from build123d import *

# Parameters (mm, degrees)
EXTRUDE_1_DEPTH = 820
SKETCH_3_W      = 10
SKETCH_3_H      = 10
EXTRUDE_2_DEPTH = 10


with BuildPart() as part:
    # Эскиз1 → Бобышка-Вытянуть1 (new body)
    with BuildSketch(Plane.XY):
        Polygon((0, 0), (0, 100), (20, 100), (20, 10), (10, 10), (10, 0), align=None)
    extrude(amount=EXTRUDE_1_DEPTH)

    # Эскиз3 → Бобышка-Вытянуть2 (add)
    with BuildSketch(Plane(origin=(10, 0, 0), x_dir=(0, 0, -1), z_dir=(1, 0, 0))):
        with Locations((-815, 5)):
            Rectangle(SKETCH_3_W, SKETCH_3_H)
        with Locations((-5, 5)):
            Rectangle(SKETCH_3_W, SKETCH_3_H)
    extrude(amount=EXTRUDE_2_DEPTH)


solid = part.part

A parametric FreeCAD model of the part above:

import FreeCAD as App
import Part
import Sketcher
Q = App.Units.Quantity

doc = App.newDocument("Part")
params = doc.addObject("Spreadsheet::Sheet", "Params")
for row, (alias, value) in enumerate([
    ("sketch1_width", "10 mm"),
    ("sketch1_height", "100 mm"),
    ("pad1_length", "820 mm"),
    ("sketch2_width", "10 mm"),
    ("pad2_length", "10 mm"),
], start=1):
    params.set(f"A{row}", alias)
    params.set(f"B{row}", "=" + value)
    params.setAlias(f"B{row}", alias)

body = doc.addObject("PartDesign::Body", "Body")

sketch1 = body.newObject("Sketcher::SketchObject", "Sketch")
sketch1.AttachmentSupport = (doc.getObject("XY_Plane"), [""])
sketch1.MapMode = "FlatFace"
sketch1.addGeometry([
    Part.LineSegment(App.Vector(0, 100, 0), App.Vector(0, 0, 0)),
    Part.LineSegment(App.Vector(0, 0, 0), App.Vector(10, 0, 0)),
    Part.LineSegment(App.Vector(10, 0, 0), App.Vector(10, 10, 0)),
    Part.LineSegment(App.Vector(10, 10, 0), App.Vector(20, 10, 0)),
    Part.LineSegment(App.Vector(20, 10, 0), App.Vector(20, 100, 0)),
    Part.LineSegment(App.Vector(20, 100, 0), App.Vector(0, 100, 0)),
], False)
sketch1.addConstraint([
    Sketcher.Constraint("Coincident", 0, 2, 1, 1),
    Sketcher.Constraint("Coincident", 1, 2, 2, 1),
    Sketcher.Constraint("Coincident", 2, 2, 3, 1),
    Sketcher.Constraint("Coincident", 3, 2, 4, 1),
    Sketcher.Constraint("Coincident", 4, 2, 5, 1),
    Sketcher.Constraint("Coincident", 5, 2, 0, 1),
    Sketcher.Constraint("Vertical", 0),
    Sketcher.Constraint("Horizontal", 1),
    Sketcher.Constraint("Vertical", 2),
    Sketcher.Constraint("Horizontal", 3),
    Sketcher.Constraint("Vertical", 4),
    Sketcher.Constraint("Horizontal", 5),
    Sketcher.Constraint("Coincident", 0, 2, -1, 1),
    Sketcher.Constraint("Equal", 1, 3),
    Sketcher.Constraint("Equal", 3, 2),
    Sketcher.Constraint("DistanceX", 1, 1, 1, 2, Q("10 mm")),
    Sketcher.Constraint("DistanceY", 0, 2, 0, 1, Q("100 mm")),
])
sketch1.setExpression("Constraints[15]", "Params.sketch1_width")
sketch1.setExpression("Constraints[16]", "Params.sketch1_height")
pad1 = body.newObject("PartDesign::Pad", "Pad")
pad1.Profile = sketch1
pad1.setExpression("Length", "Params.pad1_length")

sketch2 = body.newObject("Sketcher::SketchObject", "Sketch001")
sketch2.AttachmentSupport = (doc.getObject("YZ_Plane"), [""])
sketch2.MapMode = "FlatFace"
sketch2.AttachmentOffset = App.Placement(App.Vector(0, 0, 10), App.Rotation())
sketch2.addGeometry([
    Part.LineSegment(App.Vector(10, 820, 0), App.Vector(0, 820, 0)),
    Part.LineSegment(App.Vector(0, 820, 0), App.Vector(0, 810, 0)),
    Part.LineSegment(App.Vector(0, 810, 0), App.Vector(10, 810, 0)),
    Part.LineSegment(App.Vector(10, 810, 0), App.Vector(10, 820, 0)),
    Part.LineSegment(App.Vector(10, 10, 0), App.Vector(0, 10, 0)),
    Part.LineSegment(App.Vector(0, 10, 0), App.Vector(0, 0, 0)),
    Part.LineSegment(App.Vector(0, 0, 0), App.Vector(10, 0, 0)),
    Part.LineSegment(App.Vector(10, 0, 0), App.Vector(10, 10, 0)),
], False)
sketch2.addConstraint([
    Sketcher.Constraint("Coincident", 0, 2, 1, 1),
    Sketcher.Constraint("Coincident", 1, 2, 2, 1),
    Sketcher.Constraint("Coincident", 2, 2, 3, 1),
    Sketcher.Constraint("Coincident", 3, 2, 0, 1),
    Sketcher.Constraint("Coincident", 4, 2, 5, 1),
    Sketcher.Constraint("Coincident", 5, 2, 6, 1),
    Sketcher.Constraint("Coincident", 6, 2, 7, 1),
    Sketcher.Constraint("Coincident", 7, 2, 4, 1),
    Sketcher.Constraint("Horizontal", 0),
    Sketcher.Constraint("Vertical", 1),
    Sketcher.Constraint("Horizontal", 2),
    Sketcher.Constraint("Vertical", 3),
    Sketcher.Constraint("Horizontal", 4),
    Sketcher.Constraint("Vertical", 5),
    Sketcher.Constraint("Horizontal", 6),
    Sketcher.Constraint("Vertical", 7),
    Sketcher.Constraint("Coincident", 5, 2, -1, 1),
    Sketcher.Constraint("PointOnObject", 0, 2, -2),
    Sketcher.Constraint("Vertical", 3, 2, 6, 2),
    Sketcher.Constraint("Equal", 6, 1),
    Sketcher.Constraint("Equal", 3, 5),
    Sketcher.Constraint("DistanceX", 0, 2, 0, 1, Q("10 mm")),
    Sketcher.Constraint("DistanceY", -1, 1, 0, 2, Q("820 mm")),
])
sketch2.setExpression("Constraints[21]", "Params.sketch2_width")
pad2 = body.newObject("PartDesign::Pad", "Pad001")
pad2.Profile = sketch2
pad2.setExpression("Length", "Params.pad2_length")

doc.recompute()
